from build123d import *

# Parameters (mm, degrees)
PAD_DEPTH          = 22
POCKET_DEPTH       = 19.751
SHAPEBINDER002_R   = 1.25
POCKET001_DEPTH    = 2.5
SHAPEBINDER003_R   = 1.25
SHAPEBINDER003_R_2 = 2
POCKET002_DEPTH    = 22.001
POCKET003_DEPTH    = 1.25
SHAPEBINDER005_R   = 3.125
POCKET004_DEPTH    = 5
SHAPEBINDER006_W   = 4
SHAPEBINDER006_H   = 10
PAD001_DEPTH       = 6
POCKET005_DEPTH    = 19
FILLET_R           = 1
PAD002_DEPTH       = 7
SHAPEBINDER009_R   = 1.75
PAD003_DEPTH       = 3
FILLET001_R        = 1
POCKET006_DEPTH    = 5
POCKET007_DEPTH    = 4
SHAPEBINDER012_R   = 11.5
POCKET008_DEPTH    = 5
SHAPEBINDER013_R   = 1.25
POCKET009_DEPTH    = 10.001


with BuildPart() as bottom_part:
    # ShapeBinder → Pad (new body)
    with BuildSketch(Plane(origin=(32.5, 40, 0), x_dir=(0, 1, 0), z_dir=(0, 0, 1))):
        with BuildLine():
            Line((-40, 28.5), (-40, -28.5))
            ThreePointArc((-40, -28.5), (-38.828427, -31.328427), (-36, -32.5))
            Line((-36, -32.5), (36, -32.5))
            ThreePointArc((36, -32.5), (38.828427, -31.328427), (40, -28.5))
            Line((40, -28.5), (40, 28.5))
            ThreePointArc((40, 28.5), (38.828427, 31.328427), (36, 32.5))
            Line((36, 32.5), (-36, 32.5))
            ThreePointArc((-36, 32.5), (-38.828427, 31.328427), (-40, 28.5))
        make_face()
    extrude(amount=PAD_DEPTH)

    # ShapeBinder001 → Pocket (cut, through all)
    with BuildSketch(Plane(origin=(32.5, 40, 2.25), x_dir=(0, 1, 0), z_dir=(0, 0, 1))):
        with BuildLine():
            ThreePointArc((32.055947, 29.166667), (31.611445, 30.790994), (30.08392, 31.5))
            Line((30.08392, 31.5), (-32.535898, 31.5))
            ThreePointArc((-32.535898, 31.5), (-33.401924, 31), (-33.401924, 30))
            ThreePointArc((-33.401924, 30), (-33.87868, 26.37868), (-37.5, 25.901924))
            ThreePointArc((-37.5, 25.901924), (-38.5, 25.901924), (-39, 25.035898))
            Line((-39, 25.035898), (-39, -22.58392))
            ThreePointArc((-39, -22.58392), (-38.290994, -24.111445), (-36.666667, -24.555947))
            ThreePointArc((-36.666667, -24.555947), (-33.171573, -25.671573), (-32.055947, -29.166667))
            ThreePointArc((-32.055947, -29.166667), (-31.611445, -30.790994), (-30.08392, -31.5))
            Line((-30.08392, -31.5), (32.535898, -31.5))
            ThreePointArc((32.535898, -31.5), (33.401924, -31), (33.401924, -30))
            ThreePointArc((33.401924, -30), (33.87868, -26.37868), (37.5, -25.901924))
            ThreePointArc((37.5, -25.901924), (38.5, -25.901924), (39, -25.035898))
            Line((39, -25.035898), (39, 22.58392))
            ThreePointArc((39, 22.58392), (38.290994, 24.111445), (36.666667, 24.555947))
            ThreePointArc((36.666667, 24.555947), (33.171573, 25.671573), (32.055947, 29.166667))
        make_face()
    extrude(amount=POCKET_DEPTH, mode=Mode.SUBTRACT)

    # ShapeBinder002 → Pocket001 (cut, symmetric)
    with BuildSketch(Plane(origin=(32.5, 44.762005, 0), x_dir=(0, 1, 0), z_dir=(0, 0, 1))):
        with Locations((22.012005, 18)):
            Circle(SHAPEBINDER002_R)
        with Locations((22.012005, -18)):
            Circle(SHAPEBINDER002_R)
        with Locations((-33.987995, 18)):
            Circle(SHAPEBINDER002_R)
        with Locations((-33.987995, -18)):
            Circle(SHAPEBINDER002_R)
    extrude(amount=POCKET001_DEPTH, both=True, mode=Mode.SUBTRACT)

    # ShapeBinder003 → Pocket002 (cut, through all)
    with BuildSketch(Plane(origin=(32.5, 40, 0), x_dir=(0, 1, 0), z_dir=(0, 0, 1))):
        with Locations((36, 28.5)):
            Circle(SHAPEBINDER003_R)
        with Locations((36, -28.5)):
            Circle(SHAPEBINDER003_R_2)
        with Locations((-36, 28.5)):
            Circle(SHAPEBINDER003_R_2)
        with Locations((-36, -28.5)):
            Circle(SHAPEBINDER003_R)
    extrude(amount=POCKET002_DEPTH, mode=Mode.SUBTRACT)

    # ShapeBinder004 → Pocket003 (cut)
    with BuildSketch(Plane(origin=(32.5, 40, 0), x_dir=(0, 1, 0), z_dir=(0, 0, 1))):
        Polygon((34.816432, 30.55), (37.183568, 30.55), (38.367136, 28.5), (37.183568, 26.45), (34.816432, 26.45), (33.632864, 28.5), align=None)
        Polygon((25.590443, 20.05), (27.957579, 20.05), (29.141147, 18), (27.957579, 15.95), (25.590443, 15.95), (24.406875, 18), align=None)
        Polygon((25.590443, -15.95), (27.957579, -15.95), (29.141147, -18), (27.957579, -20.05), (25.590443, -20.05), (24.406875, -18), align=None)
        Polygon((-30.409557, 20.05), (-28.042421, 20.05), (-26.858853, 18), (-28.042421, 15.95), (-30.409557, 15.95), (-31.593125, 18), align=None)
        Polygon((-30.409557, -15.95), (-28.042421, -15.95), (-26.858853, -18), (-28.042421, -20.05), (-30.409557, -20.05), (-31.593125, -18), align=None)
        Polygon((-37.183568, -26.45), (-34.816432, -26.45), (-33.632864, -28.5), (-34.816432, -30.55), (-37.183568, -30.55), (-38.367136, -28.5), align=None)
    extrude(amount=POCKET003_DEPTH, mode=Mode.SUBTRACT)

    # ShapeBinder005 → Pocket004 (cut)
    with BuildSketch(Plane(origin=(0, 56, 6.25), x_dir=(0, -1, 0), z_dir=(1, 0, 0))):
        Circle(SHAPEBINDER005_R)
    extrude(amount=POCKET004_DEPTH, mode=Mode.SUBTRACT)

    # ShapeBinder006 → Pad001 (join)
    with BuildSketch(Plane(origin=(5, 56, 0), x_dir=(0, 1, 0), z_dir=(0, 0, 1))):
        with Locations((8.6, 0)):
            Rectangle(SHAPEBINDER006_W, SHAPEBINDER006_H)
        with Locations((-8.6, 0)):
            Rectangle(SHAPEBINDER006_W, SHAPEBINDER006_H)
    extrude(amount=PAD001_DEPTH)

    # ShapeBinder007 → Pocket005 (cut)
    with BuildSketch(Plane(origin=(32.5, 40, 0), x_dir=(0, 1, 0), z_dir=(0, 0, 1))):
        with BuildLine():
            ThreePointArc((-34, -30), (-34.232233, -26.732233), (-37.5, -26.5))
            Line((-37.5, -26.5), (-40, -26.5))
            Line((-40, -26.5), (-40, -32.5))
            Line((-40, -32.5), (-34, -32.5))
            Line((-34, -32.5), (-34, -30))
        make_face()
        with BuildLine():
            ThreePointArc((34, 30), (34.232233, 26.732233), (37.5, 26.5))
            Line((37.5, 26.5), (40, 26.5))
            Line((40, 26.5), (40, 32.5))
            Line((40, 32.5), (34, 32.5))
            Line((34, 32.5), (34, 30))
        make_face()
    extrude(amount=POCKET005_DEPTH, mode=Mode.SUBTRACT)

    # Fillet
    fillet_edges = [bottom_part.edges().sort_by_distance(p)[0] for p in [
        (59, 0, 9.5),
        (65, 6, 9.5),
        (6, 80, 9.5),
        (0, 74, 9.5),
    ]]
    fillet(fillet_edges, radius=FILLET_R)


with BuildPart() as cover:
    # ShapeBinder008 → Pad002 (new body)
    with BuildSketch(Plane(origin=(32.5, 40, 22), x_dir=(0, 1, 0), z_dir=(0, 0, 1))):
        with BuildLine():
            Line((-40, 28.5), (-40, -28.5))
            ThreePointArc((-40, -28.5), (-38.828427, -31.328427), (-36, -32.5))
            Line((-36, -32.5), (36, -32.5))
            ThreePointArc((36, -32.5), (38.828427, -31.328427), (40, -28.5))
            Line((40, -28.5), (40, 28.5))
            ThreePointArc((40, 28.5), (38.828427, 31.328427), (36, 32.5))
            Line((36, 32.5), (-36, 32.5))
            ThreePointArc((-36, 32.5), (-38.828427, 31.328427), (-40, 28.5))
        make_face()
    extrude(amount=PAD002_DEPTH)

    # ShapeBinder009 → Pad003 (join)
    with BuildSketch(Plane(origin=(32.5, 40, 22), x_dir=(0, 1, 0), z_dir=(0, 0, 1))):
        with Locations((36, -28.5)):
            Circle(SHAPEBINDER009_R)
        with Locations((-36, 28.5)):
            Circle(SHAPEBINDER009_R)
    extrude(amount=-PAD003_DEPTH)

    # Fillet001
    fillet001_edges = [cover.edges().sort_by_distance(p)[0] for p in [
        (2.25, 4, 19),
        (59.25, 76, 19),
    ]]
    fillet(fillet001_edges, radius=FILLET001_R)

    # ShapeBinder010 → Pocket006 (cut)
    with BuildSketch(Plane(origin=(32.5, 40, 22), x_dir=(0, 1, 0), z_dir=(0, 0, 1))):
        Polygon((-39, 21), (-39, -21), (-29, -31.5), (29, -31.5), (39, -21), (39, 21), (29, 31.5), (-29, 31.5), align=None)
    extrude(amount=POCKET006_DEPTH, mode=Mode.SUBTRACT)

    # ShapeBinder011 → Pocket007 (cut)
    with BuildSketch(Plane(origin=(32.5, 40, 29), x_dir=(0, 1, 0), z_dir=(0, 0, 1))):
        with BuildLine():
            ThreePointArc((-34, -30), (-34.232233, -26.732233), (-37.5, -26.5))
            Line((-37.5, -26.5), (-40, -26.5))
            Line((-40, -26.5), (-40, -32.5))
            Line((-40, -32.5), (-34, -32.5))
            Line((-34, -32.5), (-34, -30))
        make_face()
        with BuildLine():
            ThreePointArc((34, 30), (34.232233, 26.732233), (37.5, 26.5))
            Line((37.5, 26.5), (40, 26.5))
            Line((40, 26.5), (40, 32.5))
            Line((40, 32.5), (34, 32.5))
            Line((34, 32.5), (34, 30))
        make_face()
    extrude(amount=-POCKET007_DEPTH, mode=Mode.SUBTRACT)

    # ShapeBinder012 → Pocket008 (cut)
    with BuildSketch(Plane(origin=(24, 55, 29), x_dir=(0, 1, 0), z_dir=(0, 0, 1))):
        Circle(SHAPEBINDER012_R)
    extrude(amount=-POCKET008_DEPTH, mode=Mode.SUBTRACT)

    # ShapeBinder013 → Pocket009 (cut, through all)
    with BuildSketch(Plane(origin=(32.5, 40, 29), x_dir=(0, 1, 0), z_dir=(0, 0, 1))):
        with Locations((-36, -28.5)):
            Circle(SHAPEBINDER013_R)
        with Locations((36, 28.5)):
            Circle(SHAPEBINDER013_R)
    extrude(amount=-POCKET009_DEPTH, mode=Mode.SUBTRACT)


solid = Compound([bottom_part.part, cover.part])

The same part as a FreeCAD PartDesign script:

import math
import FreeCAD as App
import Part
import Sketcher

V = App.Vector
Q = App.Units.Quantity


def edges_at(feature, points):
    """Names of the edges that pass closest to the given points."""
    edges = feature.Shape.Edges
    near = lambda p: min(range(len(edges)), key=lambda i: edges[i].distToShape(Part.Vertex(*p))[0])
    return sorted({f"Edge{near(p) + 1}" for p in points})

doc = App.newDocument("Part")
body = doc.addObject("PartDesign::Body", "Body")

sketch1 = body.newObject("Sketcher::SketchObject", "Sketch")
sketch1.AttachmentSupport = (doc.getObject("XY_Plane"), [""])
sketch1.MapMode = "FlatFace"
sketch1.addGeometry(Part.LineSegment(V(4, 0, 0), V(61, 0, 0)), False)
sketch1.addGeometry(Part.ArcOfCircle(Part.Circle(V(61, 4, 0), V(0, 0, 1), 4), math.radians(-90), math.radians(0)), False)
sketch1.addGeometry(Part.LineSegment(V(65, 4, 0), V(65, 76, 0)), False)
sketch1.addGeometry(Part.ArcOfCircle(Part.Circle(V(61, 76, 0), V(0, 0, 1), 4), math.radians(0), math.radians(90)), False)
sketch1.addGeometry(Part.LineSegment(V(61, 80, 0), V(4, 80, 0)), False)
sketch1.addGeometry(Part.ArcOfCircle(Part.Circle(V(4, 76, 0), V(0, 0, 1), 4), math.radians(90), math.radians(180)), False)
sketch1.addGeometry(Part.LineSegment(V(0, 76, 0), V(0, 4, 0)), False)
sketch1.addGeometry(Part.ArcOfCircle(Part.Circle(V(4, 4, 0), V(0, 0, 1), 4), math.radians(-180), math.radians(-90)), False)
sketch1.addConstraint(Sketcher.Constraint("Tangent", 0, 2, 1, 1))
sketch1.addConstraint(Sketcher.Constraint("Tangent", 1, 2, 2, 1))
sketch1.addConstraint(Sketcher.Constraint("Tangent", 2, 2, 3, 1))
sketch1.addConstraint(Sketcher.Constraint("Tangent", 3, 2, 4, 1))
sketch1.addConstraint(Sketcher.Constraint("Tangent", 4, 2, 5, 1))
sketch1.addConstraint(Sketcher.Constraint("Tangent", 5, 2, 6, 1))
sketch1.addConstraint(Sketcher.Constraint("Tangent", 6, 2, 7, 1))
sketch1.addConstraint(Sketcher.Constraint("Tangent", 7, 2, 0, 1))
sketch1.addConstraint(Sketcher.Constraint("Horizontal", 0))
sketch1.addConstraint(Sketcher.Constraint("Vertical", 2))
sketch1.addConstraint(Sketcher.Constraint("Horizontal", 4))
sketch1.addConstraint(Sketcher.Constraint("Vertical", 6))
sketch1.addConstraint(Sketcher.Constraint("Equal", 1, 3))
sketch1.addConstraint(Sketcher.Constraint("Equal", 3, 5))
sketch1.addConstraint(Sketcher.Constraint("Equal", 5, 7))
sketch1.addConstraint(Sketcher.Constraint("PointOnObject", 0, 2, -1))
sketch1.addConstraint(Sketcher.Constraint("PointOnObject", 5, 2, -2))
sketch1.addConstraint(Sketcher.Constraint("Radius", 1, Q("4 mm")))
sketch1.addConstraint(Sketcher.Constraint("DistanceX", 0, 1, 0, 2, Q("57 mm")))
sketch1.addConstraint(Sketcher.Constraint("DistanceY", 2, 1, 2, 2, Q("72 mm")))
pad1 = body.newObject("PartDesign::Pad", "Pad")
pad1.Profile = sketch1
pad1.Length = 22

sketch2 = body.newObject("Sketcher::SketchObject", "Sketch001")
sketch2.AttachmentSupport = (doc.getObject("XY_Plane"), [""])
sketch2.MapMode = "FlatFace"
sketch2.AttachmentOffset = App.Placement(V(0, 0, 2.25), App.Rotation())
sketch2.addGeometry(Part.ArcOfCircle(Part.Circle(V(3, 70.1, 0), V(0, 0, 1), 2), math.radians(80), math.radians(180)), False)
sketch2.addGeometry(Part.LineSegment(V(1, 70.1, 0), V(1, 7.5, 0)), False)
sketch2.addGeometry(Part.ArcOfCircle(Part.Circle(V(2, 7.5, 0), V(0, 0, 1), 1), math.radians(180), math.radians(300)), False)
sketch2.addGeometry(Part.ArcOfCircle(Part.Circle(V(4, 4, 0), V(0, 0, 1), 3), math.radians(-30), math.radians(120)), False)
sketch2.addGeometry(Part.ArcOfCircle(Part.Circle(V(7.5, 2, 0), V(0, 0, 1), 1), math.radians(150), math.radians(270)), False)
sketch2.addGeometry(Part.LineSegment(V(7.5, 1, 0), V(55.1, 1, 0)), False)
sketch2.addGeometry(Part.ArcOfCircle(Part.Circle(V(55.1, 3, 0), V(0, 0, 1), 2), math.radians(-90), math.radians(10)), False)
sketch2.addGeometry(Part.ArcOfCircle(Part.Circle(V(61, 4, 0), V(0, 0, 1), 4), math.radians(80), math.radians(190)), False)
sketch2.addGeometry(Part.ArcOfCircle(Part.Circle(V(62, 9.9, 0), V(0, 0, 1), 2), math.radians(-100), math.radians(0)), False)
sketch2.addGeometry(Part.LineSegment(V(64, 9.9, 0), V(64, 72.5, 0)), False)
sketch2.addGeometry(Part.ArcOfCircle(Part.Circle(V(63, 72.5, 0), V(0, 0, 1), 1), math.radians(0), math.radians(120)), False)
sketch2.addGeometry(Part.ArcOfCircle(Part.Circle(V(61, 76, 0), V(0, 0, 1), 3), math.radians(150), math.radians(300)), False)
sketch2.addGeometry(Part.ArcOfCircle(Part.Circle(V(57.5, 78, 0), V(0, 0, 1), 1), math.radians(-30), math.radians(90)), False)
sketch2.addGeometry(Part.LineSegment(V(57.5, 79, 0), V(9.9, 79, 0)), False)
sketch2.addGeometry(Part.ArcOfCircle(Part.Circle(V(9.9, 77, 0), V(0, 0, 1), 2), math.radians(90), math.radians(190)), False)
sketch2.addGeometry(Part.ArcOfCircle(Part.Circle(V(4, 76, 0), V(0, 0, 1), 4), math.radians(-100), math.radians(10)), False)
sketch2.addConstraint(Sketcher.Constraint("Tangent", 0, 2, 1, 1))
sketch2.addConstraint(Sketcher.Constraint("Tangent", 1, 2, 2, 1))
sketch2.addConstraint(Sketcher.Constraint("Tangent", 2, 2, 3, 2))
sketch2.addConstraint(Sketcher.Constraint("Tangent", 3, 1, 4, 1))
sketch2.addConstraint(Sketcher.Constraint("Tangent", 4, 2, 5, 1))
sketch2.addConstraint(Sketcher.Constraint("Tangent", 5, 2, 6, 1))
sketch2.addConstraint(Sketcher.Constraint("Tangent", 6, 2, 7, 2))
sketch2.addConstraint(Sketcher.Constraint("Tangent", 7, 1, 8, 1))
sketch2.addConstraint(Sketcher.Constraint("Tangent", 8, 2, 9, 1))
sketch2.addConstraint(Sketcher.Constraint("Tangent", 9, 2, 10, 1))
sketch2.addConstraint(Sketcher.Constraint("Tangent", 10, 2, 11, 2))
sketch2.addConstraint(Sketcher.Constraint("Tangent", 11, 1, 12, 1))
sketch2.addConstraint(Sketcher.Constraint("Tangent", 12, 2, 13, 1))
sketch2.addConstraint(Sketcher.Constraint("Tangent", 13, 2, 14, 1))
sketch2.addConstraint(Sketcher.Constraint("Tangent", 14, 2, 15, 2))
sketch2.addConstraint(Sketcher.Constraint("Tangent", 15, 1, 0, 1))
sketch2.addConstraint(Sketcher.Constraint("Vertical", 1))
sketch2.addConstraint(Sketcher.Constraint("Horizontal", 5))
sketch2.addConstraint(Sketcher.Constraint("Vertical", 9))
sketch2.addConstraint(Sketcher.Constraint("Horizontal", 13))
sketch2.addConstraint(Sketcher.Constraint("Equal", 2, 4))
sketch2.addConstraint(Sketcher.Constraint("Equal", 0, 6))
sketch2.addConstraint(Sketcher.Constraint("Equal", 6, 8))
sketch2.addConstraint(Sketcher.Constraint("Equal", 4, 10))
sketch2.addConstraint(Sketcher.Constraint("Equal", 3, 11))
sketch2.addConstraint(Sketcher.Constraint("Equal", 10, 12))
sketch2.addConstraint(Sketcher.Constraint("Equal", 8, 14))
sketch2.addConstraint(Sketcher.Constraint("Equal", 7, 15))
sketch2.addConstraint(Sketcher.Constraint("Horizontal", 3, 3, 7, 3))
sketch2.addConstraint(Sketcher.Constraint("Horizontal", 11, 3, 15, 3))
sketch2.addConstraint(Sketcher.Constraint("Vertical", 7, 3, 11, 3))
sketch2.addConstraint(Sketcher.Constraint("Vertical", 3, 3, 15, 3))
sketch2.addConstraint(Sketcher.Constraint("Equal", 5, 13))
sketch2.addConstraint(Sketcher.Constraint("Equal", 1, 9))
sketch2.addConstraint(Sketcher.Constraint("Radius", 0, Q("2.000001 mm")))
sketch2.addConstraint(Sketcher.Constraint("Radius", 2, Q("1 mm")))
sketch2.addConstraint(Sketcher.Constraint("Radius", 3, Q("3 mm")))
sketch2.addConstraint(Sketcher.Constraint("Radius", 7, Q("4 mm")))
sketch2.addConstraint(Sketcher.Constraint("DistanceX", -1, 1, 0, 3, Q("3.000001 mm")))
sketch2.addConstraint(Sketcher.Constraint("DistanceX", -1, 1, 3, 3, Q("4 mm")))
sketch2.addConstraint(Sketcher.Constraint("DistanceY", -1, 1, 3, 3, Q("4 mm")))
sketch2.addConstraint(Sketcher.Constraint("DistanceY", -1, 1, 4, 3, Q("2 mm")))
sketch2.addConstraint(Sketcher.Constraint("DistanceX", -1, 1, 7, 3, Q("61 mm")))
sketch2.addConstraint(Sketcher.Constraint("DistanceY", -1, 1, 11, 3, Q("76 mm")))
pocket1 = body.newObject("PartDesign::Pocket", "Pocket")
pocket1.Profile = sketch2
pocket1.Type = "ThroughAll"
pocket1.Reversed = True

sketch3 = body.newObject("Sketcher::SketchObject", "Sketch002")
sketch3.AttachmentSupport = (doc.getObject("XY_Plane"), [""])
sketch3.MapMode = "FlatFace"
sketch3.addGeometry(Part.Circle(V(14.5, 66.8, 0), V(0, 0, 1), 1.2), False)
sketch3.addGeometry(Part.Circle(V(50.5, 66.8, 0), V(0, 0, 1), 1.2), False)
sketch3.addGeometry(Part.Circle(V(14.5, 10.8, 0), V(0, 0, 1), 1.2), False)
sketch3.addGeometry(Part.Circle(V(50.5, 10.8, 0), V(0, 0, 1), 1.2), False)
sketch3.addConstraint(Sketcher.Constraint("Equal", 0, 1))
sketch3.addConstraint(Sketcher.Constraint("Equal", 1, 2))
sketch3.addConstraint(Sketcher.Constraint("Equal", 2, 3))
sketch3.addConstraint(Sketcher.Constraint("Horizontal", 0, 3, 1, 3))
sketch3.addConstraint(Sketcher.Constraint("Horizontal", 2, 3, 3, 3))
sketch3.addConstraint(Sketcher.Constraint("Vertical", 0, 3, 2, 3))
sketch3.addConstraint(Sketcher.Constraint("Vertical", 1, 3, 3, 3))
sketch3.addConstraint(Sketcher.Constraint("Diameter", 0, Q("2.5 mm")))
sketch3.addConstraint(Sketcher.Constraint("DistanceX", 0, 3, 1, 3, Q("36 mm")))
sketch3.addConstraint(Sketcher.Constraint("DistanceY", 2, 3, 0, 3, Q("56 mm")))
sketch3.addConstraint(Sketcher.Constraint("DistanceX", -1, 1, 0, 3, Q("14.5 mm")))
sketch3.addConstraint(Sketcher.Constraint("DistanceY", -1, 1, 0, 3, Q("66.77401 mm")))
pocket2 = body.newObject("PartDesign::Pocket", "Pocket001")
pocket2.Profile = sketch3
pocket2.Length = 5
pocket2.Midplane = True

sketch4 = body.newObject("Sketcher::SketchObject", "Sketch003")
sketch4.AttachmentSupport = (doc.getObject("XY_Plane"), [""])
sketch4.MapMode = "FlatFace"
sketch4.addGeometry(Part.Circle(V(4, 76, 0), V(0, 0, 1), 1.2), False)
sketch4.addGeometry(Part.Circle(V(61, 76, 0), V(0, 0, 1), 2), False)
sketch4.addGeometry(Part.Circle(V(4, 4, 0), V(0, 0, 1), 2), False)
sketch4.addGeometry(Part.Circle(V(61, 4, 0), V(0, 0, 1), 1.2), False)
sketch4.addConstraint(Sketcher.Constraint("Equal", 1, 2))
sketch4.addConstraint(Sketcher.Constraint("Equal", 0, 3))
sketch4.addConstraint(Sketcher.Constraint("Horizontal", 0, 3, 1, 3))
sketch4.addConstraint(Sketcher.Constraint("Horizontal", 2, 3, 3, 3))
sketch4.addConstraint(Sketcher.Constraint("Vertical", 0, 3, 2, 3))
sketch4.addConstraint(Sketcher.Constraint("Vertical", 1, 3, 3, 3))
sketch4.addConstraint(Sketcher.Constraint("Diameter", 1, Q("4 mm")))
sketch4.addConstraint(Sketcher.Constraint("Diameter", 0, Q("2.5 mm")))
sketch4.addConstraint(Sketcher.Constraint("DistanceX", -1, 1, 0, 3, Q("4 mm")))
sketch4.addConstraint(Sketcher.Constraint("DistanceY", -1, 1, 0, 3, Q("76 mm")))
sketch4.addConstraint(Sketcher.Constraint("DistanceX", -1, 1, 1, 3, Q("61 mm")))
sketch4.addConstraint(Sketcher.Constraint("DistanceY", -1, 1, 2, 3, Q("4 mm")))
pocket3 = body.newObject("PartDesign::Pocket", "Pocket002")
pocket3.Profile = sketch4
pocket3.Type = "ThroughAll"
pocket3.Reversed = True

sketch5 = body.newObject("Sketcher::SketchObject", "Sketch004")
sketch5.AttachmentSupport = (doc.getObject("XY_Plane"), [""])
sketch5.MapMode = "FlatFace"
sketch5.addGeometry(Part.LineSegment(V(1.9, 77.2, 0), V(1.9, 74.8, 0)), False)
sketch5.addGeometry(Part.LineSegment(V(1.9, 74.8, 0), V(4, 73.6, 0)), False)
sketch5.addGeometry(Part.LineSegment(V(4, 73.6, 0), V(6, 74.8, 0)), False)
sketch5.addGeometry(Part.LineSegment(V(6, 74.8, 0), V(6, 77.2, 0)), False)
sketch5.addGeometry(Part.LineSegment(V(6, 77.2, 0), V(4, 78.4, 0)), False)
sketch5.addGeometry(Part.LineSegment(V(4, 78.4, 0), V(1.9, 77.2, 0)), False)
sketch5.addGeometry(Part.LineSegment(V(12.4, 68, 0), V(12.4, 65.6, 0)), False)
sketch5.addGeometry(Part.LineSegment(V(12.4, 65.6, 0), V(14.5, 64.4, 0)), False)
sketch5.addGeometry(Part.LineSegment(V(14.5, 64.4, 0), V(16.6, 65.6, 0)), False)
sketch5.addGeometry(Part.LineSegment(V(16.6, 65.6, 0), V(16.6, 68, 0)), False)
sketch5.addGeometry(Part.LineSegment(V(16.6, 68, 0), V(14.5, 69.1, 0)), False)
sketch5.addGeometry(Part.LineSegment(V(14.5, 69.1, 0), V(12.4, 68, 0)), False)
sketch5.addGeometry(Part.LineSegment(V(48.5, 68, 0), V(48.5, 65.6, 0)), False)
sketch5.addGeometry(Part.LineSegment(V(48.5, 65.6, 0), V(50.5, 64.4, 0)), False)
sketch5.addGeometry(Part.LineSegment(V(50.5, 64.4, 0), V(52.5, 65.6, 0)), False)
sketch5.addGeometry(Part.LineSegment(V(52.5, 65.6, 0), V(52.5, 68, 0)), False)
sketch5.addGeometry(Part.LineSegment(V(52.5, 68, 0), V(50.5, 69.1, 0)), False)
sketch5.addGeometry(Part.LineSegment(V(50.5, 69.1, 0), V(48.5, 68, 0)), False)
sketch5.addGeometry(Part.LineSegment(V(12.4, 12, 0), V(12.4, 9.6, 0)), False)
sketch5.addGeometry(Part.LineSegment(V(12.4, 9.6, 0), V(14.5, 8.4, 0)), False)
sketch5.addGeometry(Part.LineSegment(V(14.5, 8.4, 0), V(16.6, 9.6, 0)), False)
sketch5.addGeometry(Part.LineSegment(V(16.6, 9.6, 0), V(16.6, 12, 0)), False)
sketch5.addGeometry(Part.LineSegment(V(16.6, 12, 0), V(14.5, 13.1, 0)), False)
sketch5.addGeometry(Part.LineSegment(V(14.5, 13.1, 0), V(12.4, 12, 0)), False)
sketch5.addGeometry(Part.LineSegment(V(48.5, 12, 0), V(48.5, 9.6, 0)), False)
sketch5.addGeometry(Part.LineSegment(V(48.5, 9.6, 0), V(50.5, 8.4, 0)), False)
sketch5.addGeometry(Part.LineSegment(V(50.5, 8.4, 0), V(52.5, 9.6, 0)), False)
sketch5.addGeometry(Part.LineSegment(V(52.5, 9.6, 0), V(52.5, 12, 0)), False)
sketch5.addGeometry(Part.LineSegment(V(52.5, 12, 0), V(50.5, 13.1, 0)), False)
sketch5.addGeometry(Part.LineSegment(V(50.5, 13.1, 0), V(48.5, 12, 0)), False)
sketch5.addGeometry(Part.LineSegment(V(59, 5.2, 0), V(59, 2.8, 0)), False)
sketch5.addGeometry(Part.LineSegment(V(59, 2.8, 0), V(61, 1.6, 0)), False)
sketch5.addGeometry(Part.LineSegment(V(61, 1.6, 0), V(63, 2.8, 0)), False)
sketch5.addGeometry(Part.LineSegment(V(63, 2.8, 0), V(63, 5.2, 0)), False)
sketch5.addGeometry(Part.LineSegment(V(63, 5.2, 0), V(61, 6.4, 0)), False)
sketch5.addGeometry(Part.LineSegment(V(61, 6.4, 0), V(59, 5.2, 0)), False)
sketch5.addConstraint(Sketcher.Constraint("Coincident", 0, 2, 1, 1))
sketch5.addConstraint(Sketcher.Constraint("Coincident", 1, 2, 2, 1))
sketch5.addConstraint(Sketcher.Constraint("Coincident", 2, 2, 3, 1))
sketch5.addConstraint(Sketcher.Constraint("Coincident", 3, 2, 4, 1))
sketch5.addConstraint(Sketcher.Constraint("Coincident", 4, 2, 5, 1))
sketch5.addConstraint(Sketcher.Constraint("Coincident", 5, 2, 0, 1))
sketch5.addConstraint(Sketcher.Constraint("Coincident", 6, 2, 7, 1))
sketch5.addConstraint(Sketcher.Constraint("Coincident", 7, 2, 8, 1))
sketch5.addConstraint(Sketcher.Constraint("Coincident", 8, 2, 9, 1))
sketch5.addConstraint(Sketcher.Constraint("Coincident", 9, 2, 10, 1))
sketch5.addConstraint(Sketcher.Constraint("Coincident", 10, 2, 11, 1))
sketch5.addConstraint(Sketcher.Constraint("Coincident", 11, 2, 6, 1))
sketch5.addConstraint(Sketcher.Constraint("Coincident", 12, 2, 13, 1))
sketch5.addConstraint(Sketcher.Constraint("Coincident", 13, 2, 14, 1))
sketch5.addConstraint(Sketcher.Constraint("Coincident", 14, 2, 15, 1))
sketch5.addConstraint(Sketcher.Constraint("Coincident", 15, 2, 16, 1))
sketch5.addConstraint(Sketcher.Constraint("Coincident", 16, 2, 17, 1))
sketch5.addConstraint(Sketcher.Constraint("Coincident", 17, 2, 12, 1))
sketch5.addConstraint(Sketcher.Constraint("Coincident", 18, 2, 19, 1))
sketch5.addConstraint(Sketcher.Constraint("Coincident", 19, 2, 20, 1))
sketch5.addConstraint(Sketcher.Constraint("Coincident", 20, 2, 21, 1))
sketch5.addConstraint(Sketcher.Constraint("Coincident", 21, 2, 22, 1))
sketch5.addConstraint(Sketcher.Constraint("Coincident", 22, 2, 23, 1))
sketch5.addConstraint(Sketcher.Constraint("Coincident", 23, 2, 18, 1))
sketch5.addConstraint(Sketcher.Constraint("Coincident", 24, 2, 25, 1))
sketch5.addConstraint(Sketcher.Constraint("Coincident", 25, 2, 26, 1))
sketch5.addConstraint(Sketcher.Constraint("Coincident", 26, 2, 27, 1))
sketch5.addConstraint(Sketcher.Constraint("Coincident", 27, 2, 28, 1))
sketch5.addConstraint(Sketcher.Constraint("Coincident", 28, 2, 29, 1))
sketch5.addConstraint(Sketcher.Constraint("Coincident", 29, 2, 24, 1))
sketch5.addConstraint(Sketcher.Constraint("Coincident", 30, 2, 31, 1))
sketch5.addConstraint(Sketcher.Constraint("Coincident", 31, 2, 32, 1))
sketch5.addConstraint(Sketcher.Constraint("Coincident", 32, 2, 33, 1))
sketch5.addConstraint(Sketcher.Constraint("Coincident", 33, 2, 34, 1))
sketch5.addConstraint(Sketcher.Constraint("Coincident", 34, 2, 35, 1))
sketch5.addConstraint(Sketcher.Constraint("Coincident", 35, 2, 30, 1))
sketch5.addConstraint(Sketcher.Constraint("Vertical", 0))
sketch5.addConstraint(Sketcher.Constraint("Vertical", 3))
sketch5.addConstraint(Sketcher.Constraint("Vertical", 6))
sketch5.addConstraint(Sketcher.Constraint("Vertical", 9))
sketch5.addConstraint(Sketcher.Constraint("Vertical", 12))
sketch5.addConstraint(Sketcher.Constraint("Vertical", 15))
sketch5.addConstraint(Sketcher.Constraint("Vertical", 18))
sketch5.addConstraint(Sketcher.Constraint("Vertical", 21))
sketch5.addConstraint(Sketcher.Constraint("Vertical", 24))
sketch5.addConstraint(Sketcher.Constraint("Vertical", 27))
sketch5.addConstraint(Sketcher.Constraint("Vertical", 30))
sketch5.addConstraint(Sketcher.Constraint("Vertical", 33))
sketch5.addConstraint(Sketcher.Constraint("Parallel", 1, 4))
sketch5.addConstraint(Sketcher.Constraint("Parallel", 2, 5))
sketch5.addConstraint(Sketcher.Constraint("Parallel", 4, 7))
sketch5.addConstraint(Sketcher.Constraint("Parallel", 5, 8))
sketch5.addConstraint(Sketcher.Constraint("Parallel", 7, 10))
sketch5.addConstraint(Sketcher.Constraint("Parallel", 8, 11))
sketch5.addConstraint(Sketcher.Constraint("Parallel", 10, 13))
sketch5.addConstraint(Sketcher.Constraint("Parallel", 11, 14))
sketch5.addConstraint(Sketcher.Constraint("Parallel", 13, 16))
sketch5.addConstraint(Sketcher.Constraint("Parallel", 14, 17))
sketch5.addConstraint(Sketcher.Constraint("Parallel", 16, 19))
sketch5.addConstraint(Sketcher.Constraint("Parallel", 17, 20))
sketch5.addConstraint(Sketcher.Constraint("Parallel", 19, 22))
sketch5.addConstraint(Sketcher.Constraint("Parallel", 20, 23))
sketch5.addConstraint(Sketcher.Constraint("Parallel", 22, 25))
sketch5.addConstraint(Sketcher.Constraint("Parallel", 23, 26))
sketch5.addConstraint(Sketcher.Constraint("Parallel", 25, 28))
sketch5.addConstraint(Sketcher.Constraint("Parallel", 26, 29))
sketch5.addConstraint(Sketcher.Constraint("Parallel", 28, 31))
sketch5.addConstraint(Sketcher.Constraint("Parallel", 29, 32))
sketch5.addConstraint(Sketcher.Constraint("Parallel", 31, 34))
sketch5.addConstraint(Sketcher.Constraint("Parallel", 32, 35))
sketch5.addConstraint(Sketcher.Constraint("Horizontal", 0, 2, 2, 2))
sketch5.addConstraint(Sketcher.Constraint("Horizontal", 3, 2, 5, 2))
sketch5.addConstraint(Sketcher.Constraint("Horizontal", 6, 2, 8, 2))
sketch5.addConstraint(Sketcher.Constraint("Horizontal", 9, 2, 11, 2))
sketch5.addConstraint(Sketcher.Constraint("Horizontal", 8, 2, 12, 2))
sketch5.addConstraint(Sketcher.Constraint("Horizontal", 7, 2, 13, 2))
sketch5.addConstraint(Sketcher.Constraint("Horizontal", 12, 2, 14, 2))
sketch5.addConstraint(Sketcher.Constraint("Horizontal", 11, 2, 15, 2))
sketch5.addConstraint(Sketcher.Constraint("Horizontal", 10, 2, 16, 2))
sketch5.addConstraint(Sketcher.Constraint("Horizontal", 18, 2, 20, 2))
sketch5.addConstraint(Sketcher.Constraint("Horizontal", 21, 2, 23, 2))
sketch5.addConstraint(Sketcher.Constraint("Horizontal", 20, 2, 24, 2))
sketch5.addConstraint(Sketcher.Constraint("Horizontal", 19, 2, 25, 2))
sketch5.addConstraint(Sketcher.Constraint("Horizontal", 24, 2, 26, 2))
sketch5.addConstraint(Sketcher.Constraint("Horizontal", 23, 2, 27, 2))
sketch5.addConstraint(Sketcher.Constraint("Horizontal", 22, 2, 28, 2))
sketch5.addConstraint(Sketcher.Constraint("Horizontal", 30, 2, 32, 2))
sketch5.addConstraint(Sketcher.Constraint("Horizontal", 33, 2, 35, 2))
sketch5.addConstraint(Sketcher.Constraint("Vertical", 1, 2, 4, 2))
sketch5.addConstraint(Sketcher.Constraint("Vertical", 11, 2, 18, 2))
sketch5.addConstraint(Sketcher.Constraint("Vertical", 10, 2, 19, 2))
sketch5.addConstraint(Sketcher.Constraint("Vertical", 17, 2, 24, 2))
sketch5.addConstraint(Sketcher.Constraint("Equal", 3, 6))
sketch5.addConstraint(Sketcher.Constraint("Equal", 15, 18))
sketch5.addConstraint(Sketcher.Constraint("Equal", 27, 30))
sketch5.addConstraint(Sketcher.Constraint("Equal", 5, 7))
sketch5.addConstraint(Sketcher.Constraint("Equal", 29, 31))
sketch5.addConstraint(Sketcher.Constraint("Angle", 1, Q("-29.999999 deg")))
sketch5.addConstraint(Sketcher.Constraint("DistanceX", -1, 1, 1, 2, Q("4 mm")))
sketch5.addConstraint(Sketcher.Constraint("DistanceX", -1, 1, 31, 2, Q("61 mm")))
sketch5.addConstraint(Sketcher.Constraint("DistanceX", 6, 2, 12, 2, Q("36 mm")))
sketch5.addConstraint(Sketcher.Constraint("DistanceY", 18, 2, 6, 2, Q("56 mm")))
sketch5.addConstraint(Sketcher.Constraint("DistanceX", -1, 1, 7, 2, Q("14.5 mm")))
sketch5.addConstraint(Sketcher.Constraint("DistanceX", 0, 2, 2, 2, Q("4.1 mm")))
sketch5.addConstraint(Sketcher.Constraint("DistanceY", 0, 2, 0, 1, Q("2.367136 mm")))
sketch5.addConstraint(Sketcher.Constraint("DistanceY", -1, 1, 9, 2, Q("67.957579 mm")))
sketch5.addConstraint(Sketcher.Constraint("DistanceY", -1, 1, 30, 2, Q("2.816432 mm")))
sketch5.addConstraint(Sketcher.Constraint("DistanceY", 6, 2, 2, 2, Q("9.225989 mm")))
pocket4 = body.newObject("PartDesign::Pocket", "Pocket003")
pocket4.Profile = sketch5
pocket4.Length = 1.25
pocket4.Reversed = True

sketch6 = body.newObject("Sketcher::SketchObject", "Sketch005")
sketch6.AttachmentSupport = (doc.getObject("YZ_Plane"), [""])
sketch6.MapMode = "FlatFace"
sketch6.addGeometry(Part.Circle(V(56, 6.2, 0), V(0, 0, 1), 3.1), False)
sketch6.addConstraint(Sketcher.Constraint("Diameter", 0, Q("6.25 mm")))
sketch6.addConstraint(Sketcher.Constraint("DistanceX", -1, 1, 0, 3, Q("56 mm")))
sketch6.addConstraint(Sketcher.Constraint("DistanceY", -1, 1, 0, 3, Q("6.25 mm")))
pocket5 = body.newObject("PartDesign::Pocket", "Pocket004")
pocket5.Profile = sketch6
pocket5.Length = 5
pocket5.Reversed = True

sketch7 = body.newObject("Sketcher::SketchObject", "Sketch006")
sketch7.AttachmentSupport = (doc.getObject("XY_Plane"), [""])
sketch7.MapMode = "FlatFace"
sketch7.addGeometry(Part.LineSegment(V(0, 62.6, 0), V(10, 62.6, 0)), False)
sketch7.addGeometry(Part.LineSegment(V(10, 62.6, 0), V(10, 66.6, 0)), False)
sketch7.addGeometry(Part.LineSegment(V(10, 66.6, 0), V(0, 66.6, 0)), False)
sketch7.addGeometry(Part.LineSegment(V(0, 66.6, 0), V(0, 62.6, 0)), False)
sketch7.addGeometry(Part.LineSegment(V(0, 45.4, 0), V(10, 45.4, 0)), False)
sketch7.addGeometry(Part.LineSegment(V(10, 45.4, 0), V(10, 49.4, 0)), False)
sketch7.addGeometry(Part.LineSegment(V(10, 49.4, 0), V(0, 49.4, 0)), False)
sketch7.addGeometry(Part.LineSegment(V(0, 49.4, 0), V(0, 45.4, 0)), False)
sketch7.addConstraint(Sketcher.Constraint("Coincident", 0, 2, 1, 1))
sketch7.addConstraint(Sketcher.Constraint("Coincident", 1, 2, 2, 1))
sketch7.addConstraint(Sketcher.Constraint("Coincident", 2, 2, 3, 1))
sketch7.addConstraint(Sketcher.Constraint("Coincident", 3, 2, 0, 1))
sketch7.addConstraint(Sketcher.Constraint("Coincident", 4, 2, 5, 1))
sketch7.addConstraint(Sketcher.Constraint("Coincident", 5, 2, 6, 1))
sketch7.addConstraint(Sketcher.Constraint("Coincident", 6, 2, 7, 1))
sketch7.addConstraint(Sketcher.Constraint("Coincident", 7, 2, 4, 1))
sketch7.addConstraint(Sketcher.Constraint("Horizontal", 0))
sketch7.addConstraint(Sketcher.Constraint("Vertical", 1))
sketch7.addConstraint(Sketcher.Constraint("Horizontal", 2))
sketch7.addConstraint(Sketcher.Constraint("Vertical", 3))
sketch7.addConstraint(Sketcher.Constraint("Horizontal", 4))
sketch7.addConstraint(Sketcher.Constraint("Vertical", 5))
sketch7.addConstraint(Sketcher.Constraint("Horizontal", 6))
sketch7.addConstraint(Sketcher.Constraint("Vertical", 7))
sketch7.addConstraint(Sketcher.Constraint("PointOnObject", 2, 2, -2))
sketch7.addConstraint(Sketcher.Constraint("PointOnObject", 6, 2, -2))
sketch7.addConstraint(Sketcher.Constraint("Vertical", 1, 2, 4, 2))
sketch7.addConstraint(Sketcher.Constraint("Equal", 3, 5))
sketch7.addConstraint(Sketcher.Constraint("DistanceX", 0, 1, 0, 2, Q("10 mm")))
sketch7.addConstraint(Sketcher.Constraint("DistanceY", 1, 1, 1, 2, Q("4 mm")))
sketch7.addConstraint(Sketcher.Constraint("DistanceY", -1, 1, 0, 2, Q("62.6 mm")))
sketch7.addConstraint(Sketcher.Constraint("DistanceY", -1, 1, 4, 2, Q("45.4 mm")))
pad2 = body.newObject("PartDesign::Pad", "Pad001")
pad2.Profile = sketch7
pad2.Length = 6

sketch8 = body.newObject("Sketcher::SketchObject", "Sketch007")
sketch8.AttachmentSupport = (doc.getObject("XY_Plane"), [""])
sketch8.MapMode = "FlatFace"
sketch8.addGeometry(Part.ArcOfCircle(Part.Circle(V(61, 4, 0), V(0, 0, 1), 2.5), math.radians(53), math.radians(217)), False)
sketch8.addGeometry(Part.LineSegment(V(59, 2.5, 0), V(59, 0, 0)), False)
sketch8.addGeometry(Part.LineSegment(V(59, 0, 0), V(65, 0, 0)), False)
sketch8.addGeometry(Part.LineSegment(V(65, 0, 0), V(65, 6, 0)), False)
sketch8.addGeometry(Part.LineSegment(V(65, 6, 0), V(62.5, 6, 0)), False)
sketch8.addGeometry(Part.ArcOfCircle(Part.Circle(V(4, 76, 0), V(0, 0, 1), 2.5), math.radians(-127), math.radians(37)), False)
sketch8.addGeometry(Part.LineSegment(V(6, 77.5, 0), V(6, 80, 0)), False)
sketch8.addGeometry(Part.LineSegment(V(6, 80, 0), V(0, 80, 0)), False)
sketch8.addGeometry(Part.LineSegment(V(0, 80, 0), V(0, 74, 0)), False)
sketch8.addGeometry(Part.LineSegment(V(0, 74, 0), V(2.5, 74, 0)), False)
sketch8.addConstraint(Sketcher.Constraint("Coincident", 0, 2, 1, 1))
sketch8.addConstraint(Sketcher.Constraint("Coincident", 1, 2, 2, 1))
sketch8.addConstraint(Sketcher.Constraint("Coincident", 2, 2, 3, 1))
sketch8.addConstraint(Sketcher.Constraint("Coincident", 3, 2, 4, 1))
sketch8.addConstraint(Sketcher.Constraint("Coincident", 4, 2, 0, 1))
sketch8.addConstraint(Sketcher.Constraint("Coincident", 5, 2, 6, 1))
sketch8.addConstraint(Sketcher.Constraint("Coincident", 6, 2, 7, 1))
sketch8.addConstraint(Sketcher.Constraint("Coincident", 7, 2, 8, 1))
sketch8.addConstraint(Sketcher.Constraint("Coincident", 8, 2, 9, 1))
sketch8.addConstraint(Sketcher.Constraint("Coincident", 9, 2, 5, 1))
sketch8.addConstraint(Sketcher.Constraint("Vertical", 1))
sketch8.addConstraint(Sketcher.Constraint("Horizontal", 2))
sketch8.addConstraint(Sketcher.Constraint("Vertical", 3))
sketch8.addConstraint(Sketcher.Constraint("Horizontal", 4))
sketch8.addConstraint(Sketcher.Constraint("Vertical", 6))
sketch8.addConstraint(Sketcher.Constraint("Horizontal", 7))
sketch8.addConstraint(Sketcher.Constraint("Vertical", 8))
sketch8.addConstraint(Sketcher.Constraint("Horizontal", 9))
sketch8.addConstraint(Sketcher.Constraint("Equal", 0, 5))
sketch8.addConstraint(Sketcher.Constraint("PointOnObject", 1, 2, -1))
sketch8.addConstraint(Sketcher.Constraint("PointOnObject", 7, 2, -2))
sketch8.addConstraint(Sketcher.Constraint("Equal", 2, 7))
sketch8.addConstraint(Sketcher.Constraint("Equal", 4, 9))
sketch8.addConstraint(Sketcher.Constraint("Equal", 9, 1))
sketch8.addConstraint(Sketcher.Constraint("Equal", 7, 3))
sketch8.addConstraint(Sketcher.Constraint("Equal", 1, 6))
sketch8.addConstraint(Sketcher.Constraint("Equal", 3, 8))
sketch8.addConstraint(Sketcher.Constraint("Radius", 0, Q("2.5 mm")))
sketch8.addConstraint(Sketcher.Constraint("DistanceX", 2, 1, 2, 2, Q("6 mm")))
sketch8.addConstraint(Sketcher.Constraint("DistanceX", 4, 2, 4, 1, Q("2.5 mm")))
sketch8.addConstraint(Sketcher.Constraint("DistanceX", -1, 1, 0, 3, Q("61 mm")))
sketch8.addConstraint(Sketcher.Constraint("DistanceY", -1, 1, 5, 3, Q("76 mm")))
pocket6 = body.newObject("PartDesign::Pocket", "Pocket005")
pocket6.Profile = sketch8
pocket6.Length = 19
pocket6.Reversed = True
doc.recompute()

fillet = body.newObject("PartDesign::Fillet", "Fillet")
fillet.Base = (pocket6, edges_at(pocket6, [
    (59, 0, 9.5),
    (65, 6, 9.5),
    (6, 80, 9.5),
    (0, 74, 9.5),
]))
fillet.Radius = 1
body2 = doc.addObject("PartDesign::Body", "Body001")

sketch9 = body2.newObject("Sketcher::SketchObject", "Sketch008")
sketch9.AttachmentSupport = (doc.getObject("XY_Plane001"), [""])
sketch9.MapMode = "FlatFace"
sketch9.AttachmentOffset = App.Placement(V(0, 0, 22), App.Rotation())
sketch9.addGeometry(Part.LineSegment(V(4, 0, 0), V(61, 0, 0)), False)
sketch9.addGeometry(Part.ArcOfCircle(Part.Circle(V(61, 4, 0), V(0, 0, 1), 4), math.radians(-90), math.radians(0)), False)
sketch9.addGeometry(Part.LineSegment(V(65, 4, 0), V(65, 76, 0)), False)
sketch9.addGeometry(Part.ArcOfCircle(Part.Circle(V(61, 76, 0), V(0, 0, 1), 4), math.radians(0), math.radians(90)), False)
sketch9.addGeometry(Part.LineSegment(V(61, 80, 0), V(4, 80, 0)), False)
sketch9.addGeometry(Part.ArcOfCircle(Part.Circle(V(4, 76, 0), V(0, 0, 1), 4), math.radians(90), math.radians(180)), False)
sketch9.addGeometry(Part.LineSegment(V(0, 76, 0), V(0, 4, 0)), False)
sketch9.addGeometry(Part.ArcOfCircle(Part.Circle(V(4, 4, 0), V(0, 0, 1), 4), math.radians(-180), math.radians(-90)), False)
sketch9.addConstraint(Sketcher.Constraint("Tangent", 0, 2, 1, 1))
sketch9.addConstraint(Sketcher.Constraint("Tangent", 1, 2, 2, 1))
sketch9.addConstraint(Sketcher.Constraint("Tangent", 2, 2, 3, 1))
sketch9.addConstraint(Sketcher.Constraint("Tangent", 3, 2, 4, 1))
sketch9.addConstraint(Sketcher.Constraint("Tangent", 4, 2, 5, 1))
sketch9.addConstraint(Sketcher.Constraint("Tangent", 5, 2, 6, 1))
sketch9.addConstraint(Sketcher.Constraint("Tangent", 6, 2, 7, 1))
sketch9.addConstraint(Sketcher.Constraint("Tangent", 7, 2, 0, 1))
sketch9.addConstraint(Sketcher.Constraint("Horizontal", 0))
sketch9.addConstraint(Sketcher.Constraint("Vertical", 2))
sketch9.addConstraint(Sketcher.Constraint("Horizontal", 4))
sketch9.addConstraint(Sketcher.Constraint("Vertical", 6))
sketch9.addConstraint(Sketcher.Constraint("Equal", 1, 3))
sketch9.addConstraint(Sketcher.Constraint("Equal", 3, 5))
sketch9.addConstraint(Sketcher.Constraint("Equal", 5, 7))
sketch9.addConstraint(Sketcher.Constraint("PointOnObject", 0, 2, -1))
sketch9.addConstraint(Sketcher.Constraint("PointOnObject", 5, 2, -2))
sketch9.addConstraint(Sketcher.Constraint("Radius", 1, Q("4 mm")))
sketch9.addConstraint(Sketcher.Constraint("DistanceX", 0, 1, 0, 2, Q("57 mm")))
sketch9.addConstraint(Sketcher.Constraint("DistanceY", 2, 1, 2, 2, Q("72 mm")))
pad3 = body2.newObject("PartDesign::Pad", "Pad002")
pad3.Profile = sketch9
pad3.Length = 7

sketch10 = body2.newObject("Sketcher::SketchObject", "Sketch009")
sketch10.AttachmentSupport = (doc.getObject("XY_Plane001"), [""])
sketch10.MapMode = "FlatFace"
sketch10.AttachmentOffset = App.Placement(V(0, 0, 22), App.Rotation())
sketch10.addGeometry(Part.Circle(V(61, 76, 0), V(0, 0, 1), 1.8), False)
sketch10.addGeometry(Part.Circle(V(4, 4, 0), V(0, 0, 1), 1.8), False)
sketch10.addConstraint(Sketcher.Constraint("Equal", 0, 1))
sketch10.addConstraint(Sketcher.Constraint("Diameter", 0, Q("3.5 mm")))
sketch10.addConstraint(Sketcher.Constraint("DistanceX", -1, 1, 0, 3, Q("61 mm")))
sketch10.addConstraint(Sketcher.Constraint("DistanceY", -1, 1, 0, 3, Q("76 mm")))
sketch10.addConstraint(Sketcher.Constraint("DistanceX", -1, 1, 1, 3, Q("4 mm")))
sketch10.addConstraint(Sketcher.Constraint("DistanceY", -1, 1, 1, 3, Q("4 mm")))
pad4 = body2.newObject("PartDesign::Pad", "Pad003")
pad4.Profile = sketch10
pad4.Length = 3
pad4.Reversed = True
doc.recompute()

fillet2 = body2.newObject("PartDesign::Fillet", "Fillet001")
fillet2.Base = (pad4, edges_at(pad4, [(4, 2.25, 19), (61, 74.25, 19)]))
fillet2.Radius = 1

sketch11 = body2.newObject("Sketcher::SketchObject", "Sketch010")
sketch11.AttachmentSupport = (doc.getObject("XY_Plane001"), [""])
sketch11.MapMode = "FlatFace"
sketch11.AttachmentOffset = App.Placement(V(0, 0, 22), App.Rotation())
sketch11.addGeometry(Part.LineSegment(V(12, 1, 0), V(54, 1, 0)), False)
sketch11.addGeometry(Part.LineSegment(V(54, 1, 0), V(64, 11, 0)), False)
sketch11.addGeometry(Part.LineSegment(V(64, 11, 0), V(64, 69, 0)), False)
sketch11.addGeometry(Part.LineSegment(V(64, 69, 0), V(54, 79, 0)), False)
sketch11.addGeometry(Part.LineSegment(V(54, 79, 0), V(12, 79, 0)), False)
sketch11.addGeometry(Part.LineSegment(V(12, 79, 0), V(1, 69, 0)), False)
sketch11.addGeometry(Part.LineSegment(V(1, 69, 0), V(1, 11, 0)), False)
sketch11.addGeometry(Part.LineSegment(V(1, 11, 0), V(12, 1, 0)), False)
sketch11.addConstraint(Sketcher.Constraint("Coincident", 0, 2, 1, 1))
sketch11.addConstraint(Sketcher.Constraint("Coincident", 1, 2, 2, 1))
sketch11.addConstraint(Sketcher.Constraint("Coincident", 2, 2, 3, 1))
sketch11.addConstraint(Sketcher.Constraint("Coincident", 3, 2, 4, 1))
sketch11.addConstraint(Sketcher.Constraint("Coincident", 4, 2, 5, 1))
sketch11.addConstraint(Sketcher.Constraint("Coincident", 5, 2, 6, 1))
sketch11.addConstraint(Sketcher.Constraint("Coincident", 6, 2, 7, 1))
sketch11.addConstraint(Sketcher.Constraint("Coincident", 7, 2, 0, 1))
sketch11.addConstraint(Sketcher.Constraint("Horizontal", 0))
sketch11.addConstraint(Sketcher.Constraint("Vertical", 2))
sketch11.addConstraint(Sketcher.Constraint("Horizontal", 4))
sketch11.addConstraint(Sketcher.Constraint("Vertical", 6))
sketch11.addConstraint(Sketcher.Constraint("Parallel", 1, 5))
sketch11.addConstraint(Sketcher.Constraint("Parallel", 3, 7))
sketch11.addConstraint(Sketcher.Constraint("Horizontal", 2, 2, 5, 2))
sketch11.addConstraint(Sketcher.Constraint("Horizontal", 1, 2, 6, 2))
sketch11.addConstraint(Sketcher.Constraint("Vertical", 0, 2, 3, 2))
sketch11.addConstraint(Sketcher.Constraint("Vertical", 4, 2, 7, 2))
sketch11.addConstraint(Sketcher.Constraint("DistanceX", 0, 1, 0, 2, Q("42 mm")))
sketch11.addConstraint(Sketcher.Constraint("DistanceY", 2, 1, 2, 2, Q("58 mm")))
sketch11.addConstraint(Sketcher.Constraint("DistanceY", -1, 1, 0, 2, Q("1 mm")))
sketch11.addConstraint(Sketcher.Constraint("DistanceX", -1, 1, 1, 2, Q("64 mm")))
sketch11.addConstraint(Sketcher.Constraint("DistanceY", -1, 1, 1, 2, Q("11 mm")))
sketch11.addConstraint(Sketcher.Constraint("DistanceX", -1, 1, 5, 2, Q("1 mm")))
pocket7 = body2.newObject("PartDesign::Pocket", "Pocket006")
pocket7.Profile = sketch11
pocket7.Length = 5
pocket7.Reversed = True

sketch12 = body2.newObject("Sketcher::SketchObject", "Sketch011")
sketch12.AttachmentSupport = (doc.getObject("XY_Plane001"), [""])
sketch12.MapMode = "FlatFace"
sketch12.AttachmentOffset = App.Placement(V(0, 0, 29), App.Rotation())
sketch12.addGeometry(Part.ArcOfCircle(Part.Circle(V(61, 4, 0), V(0, 0, 1), 2.5), math.radians(53), math.radians(217)), False)
sketch12.addGeometry(Part.LineSegment(V(59, 2.5, 0), V(59, 0, 0)), False)
sketch12.addGeometry(Part.LineSegment(V(59, 0, 0), V(65, 0, 0)), False)
sketch12.addGeometry(Part.LineSegment(V(65, 0, 0), V(65, 6, 0)), False)
sketch12.addGeometry(Part.LineSegment(V(65, 6, 0), V(62.5, 6, 0)), False)
sketch12.addGeometry(Part.ArcOfCircle(Part.Circle(V(4, 76, 0), V(0, 0, 1), 2.5), math.radians(-127), math.radians(37)), False)
sketch12.addGeometry(Part.LineSegment(V(6, 77.5, 0), V(6, 80, 0)), False)
sketch12.addGeometry(Part.LineSegment(V(6, 80, 0), V(0, 80, 0)), False)
sketch12.addGeometry(Part.LineSegment(V(0, 80, 0), V(0, 74, 0)), False)
sketch12.addGeometry(Part.LineSegment(V(0, 74, 0), V(2.5, 74, 0)), False)
sketch12.addConstraint(Sketcher.Constraint("Coincident", 0, 2, 1, 1))
sketch12.addConstraint(Sketcher.Constraint("Coincident", 1, 2, 2, 1))
sketch12.addConstraint(Sketcher.Constraint("Coincident", 2, 2, 3, 1))
sketch12.addConstraint(Sketcher.Constraint("Coincident", 3, 2, 4, 1))
sketch12.addConstraint(Sketcher.Constraint("Coincident", 4, 2, 0, 1))
sketch12.addConstraint(Sketcher.Constraint("Coincident", 5, 2, 6, 1))
sketch12.addConstraint(Sketcher.Constraint("Coincident", 6, 2, 7, 1))
sketch12.addConstraint(Sketcher.Constraint("Coincident", 7, 2, 8, 1))
sketch12.addConstraint(Sketcher.Constraint("Coincident", 8, 2, 9, 1))
sketch12.addConstraint(Sketcher.Constraint("Coincident", 9, 2, 5, 1))
sketch12.addConstraint(Sketcher.Constraint("Vertical", 1))
sketch12.addConstraint(Sketcher.Constraint("Horizontal", 2))
sketch12.addConstraint(Sketcher.Constraint("Vertical", 3))
sketch12.addConstraint(Sketcher.Constraint("Horizontal", 4))
sketch12.addConstraint(Sketcher.Constraint("Vertical", 6))
sketch12.addConstraint(Sketcher.Constraint("Horizontal", 7))
sketch12.addConstraint(Sketcher.Constraint("Vertical", 8))
sketch12.addConstraint(Sketcher.Constraint("Horizontal", 9))
sketch12.addConstraint(Sketcher.Constraint("Equal", 0, 5))
sketch12.addConstraint(Sketcher.Constraint("PointOnObject", 1, 2, -1))
sketch12.addConstraint(Sketcher.Constraint("PointOnObject", 7, 2, -2))
sketch12.addConstraint(Sketcher.Constraint("Equal", 2, 7))
sketch12.addConstraint(Sketcher.Constraint("Equal", 4, 9))
sketch12.addConstraint(Sketcher.Constraint("Equal", 9, 1))
sketch12.addConstraint(Sketcher.Constraint("Equal", 7, 3))
sketch12.addConstraint(Sketcher.Constraint("Equal", 1, 6))
sketch12.addConstraint(Sketcher.Constraint("Equal", 3, 8))
sketch12.addConstraint(Sketcher.Constraint("Radius", 0, Q("2.5 mm")))
sketch12.addConstraint(Sketcher.Constraint("DistanceX", 2, 1, 2, 2, Q("6 mm")))
sketch12.addConstraint(Sketcher.Constraint("DistanceX", 4, 2, 4, 1, Q("2.5 mm")))
sketch12.addConstraint(Sketcher.Constraint("DistanceX", -1, 1, 0, 3, Q("61 mm")))
sketch12.addConstraint(Sketcher.Constraint("DistanceY", -1, 1, 5, 3, Q("76 mm")))
pocket8 = body2.newObject("PartDesign::Pocket", "Pocket007")
pocket8.Profile = sketch12
pocket8.Length = 4

sketch13 = body2.newObject("Sketcher::SketchObject", "Sketch012")
sketch13.AttachmentSupport = (doc.getObject("XY_Plane001"), [""])
sketch13.MapMode = "FlatFace"
sketch13.AttachmentOffset = App.Placement(V(0, 0, 29), App.Rotation())
sketch13.addGeometry(Part.Circle(V(24, 55, 0), V(0, 0, 1), 12), False)
sketch13.addConstraint(Sketcher.Constraint("Diameter", 0, Q("23 mm")))
sketch13.addConstraint(Sketcher.Constraint("DistanceX", -1, 1, 0, 3, Q("24 mm")))
sketch13.addConstraint(Sketcher.Constraint("DistanceY", -1, 1, 0, 3, Q("55 mm")))
pocket9 = body2.newObject("PartDesign::Pocket", "Pocket008")
pocket9.Profile = sketch13
pocket9.Length = 5

sketch14 = body2.newObject("Sketcher::SketchObject", "Sketch013")
sketch14.AttachmentSupport = (doc.getObject("XY_Plane001"), [""])
sketch14.MapMode = "FlatFace"
sketch14.AttachmentOffset = App.Placement(V(0, 0, 29), App.Rotation())
sketch14.addGeometry(Part.Circle(V(61, 4, 0), V(0, 0, 1), 1.2), False)
sketch14.addGeometry(Part.Circle(V(4, 76, 0), V(0, 0, 1), 1.2), False)
sketch14.addConstraint(Sketcher.Constraint("Equal", 0, 1))
sketch14.addConstraint(Sketcher.Constraint("Diameter", 0, Q("2.5 mm")))
sketch14.addConstraint(Sketcher.Constraint("DistanceX", -1, 1, 0, 3, Q("61 mm")))
sketch14.addConstraint(Sketcher.Constraint("DistanceY", -1, 1, 0, 3, Q("4 mm")))
sketch14.addConstraint(Sketcher.Constraint("DistanceX", -1, 1, 1, 3, Q("4 mm")))
sketch14.addConstraint(Sketcher.Constraint("DistanceY", -1, 1, 1, 3, Q("76 mm")))
pocket10 = body2.newObject("PartDesign::Pocket", "Pocket009")
pocket10.Profile = sketch14
pocket10.Type = "ThroughAll"

doc.recompute()
